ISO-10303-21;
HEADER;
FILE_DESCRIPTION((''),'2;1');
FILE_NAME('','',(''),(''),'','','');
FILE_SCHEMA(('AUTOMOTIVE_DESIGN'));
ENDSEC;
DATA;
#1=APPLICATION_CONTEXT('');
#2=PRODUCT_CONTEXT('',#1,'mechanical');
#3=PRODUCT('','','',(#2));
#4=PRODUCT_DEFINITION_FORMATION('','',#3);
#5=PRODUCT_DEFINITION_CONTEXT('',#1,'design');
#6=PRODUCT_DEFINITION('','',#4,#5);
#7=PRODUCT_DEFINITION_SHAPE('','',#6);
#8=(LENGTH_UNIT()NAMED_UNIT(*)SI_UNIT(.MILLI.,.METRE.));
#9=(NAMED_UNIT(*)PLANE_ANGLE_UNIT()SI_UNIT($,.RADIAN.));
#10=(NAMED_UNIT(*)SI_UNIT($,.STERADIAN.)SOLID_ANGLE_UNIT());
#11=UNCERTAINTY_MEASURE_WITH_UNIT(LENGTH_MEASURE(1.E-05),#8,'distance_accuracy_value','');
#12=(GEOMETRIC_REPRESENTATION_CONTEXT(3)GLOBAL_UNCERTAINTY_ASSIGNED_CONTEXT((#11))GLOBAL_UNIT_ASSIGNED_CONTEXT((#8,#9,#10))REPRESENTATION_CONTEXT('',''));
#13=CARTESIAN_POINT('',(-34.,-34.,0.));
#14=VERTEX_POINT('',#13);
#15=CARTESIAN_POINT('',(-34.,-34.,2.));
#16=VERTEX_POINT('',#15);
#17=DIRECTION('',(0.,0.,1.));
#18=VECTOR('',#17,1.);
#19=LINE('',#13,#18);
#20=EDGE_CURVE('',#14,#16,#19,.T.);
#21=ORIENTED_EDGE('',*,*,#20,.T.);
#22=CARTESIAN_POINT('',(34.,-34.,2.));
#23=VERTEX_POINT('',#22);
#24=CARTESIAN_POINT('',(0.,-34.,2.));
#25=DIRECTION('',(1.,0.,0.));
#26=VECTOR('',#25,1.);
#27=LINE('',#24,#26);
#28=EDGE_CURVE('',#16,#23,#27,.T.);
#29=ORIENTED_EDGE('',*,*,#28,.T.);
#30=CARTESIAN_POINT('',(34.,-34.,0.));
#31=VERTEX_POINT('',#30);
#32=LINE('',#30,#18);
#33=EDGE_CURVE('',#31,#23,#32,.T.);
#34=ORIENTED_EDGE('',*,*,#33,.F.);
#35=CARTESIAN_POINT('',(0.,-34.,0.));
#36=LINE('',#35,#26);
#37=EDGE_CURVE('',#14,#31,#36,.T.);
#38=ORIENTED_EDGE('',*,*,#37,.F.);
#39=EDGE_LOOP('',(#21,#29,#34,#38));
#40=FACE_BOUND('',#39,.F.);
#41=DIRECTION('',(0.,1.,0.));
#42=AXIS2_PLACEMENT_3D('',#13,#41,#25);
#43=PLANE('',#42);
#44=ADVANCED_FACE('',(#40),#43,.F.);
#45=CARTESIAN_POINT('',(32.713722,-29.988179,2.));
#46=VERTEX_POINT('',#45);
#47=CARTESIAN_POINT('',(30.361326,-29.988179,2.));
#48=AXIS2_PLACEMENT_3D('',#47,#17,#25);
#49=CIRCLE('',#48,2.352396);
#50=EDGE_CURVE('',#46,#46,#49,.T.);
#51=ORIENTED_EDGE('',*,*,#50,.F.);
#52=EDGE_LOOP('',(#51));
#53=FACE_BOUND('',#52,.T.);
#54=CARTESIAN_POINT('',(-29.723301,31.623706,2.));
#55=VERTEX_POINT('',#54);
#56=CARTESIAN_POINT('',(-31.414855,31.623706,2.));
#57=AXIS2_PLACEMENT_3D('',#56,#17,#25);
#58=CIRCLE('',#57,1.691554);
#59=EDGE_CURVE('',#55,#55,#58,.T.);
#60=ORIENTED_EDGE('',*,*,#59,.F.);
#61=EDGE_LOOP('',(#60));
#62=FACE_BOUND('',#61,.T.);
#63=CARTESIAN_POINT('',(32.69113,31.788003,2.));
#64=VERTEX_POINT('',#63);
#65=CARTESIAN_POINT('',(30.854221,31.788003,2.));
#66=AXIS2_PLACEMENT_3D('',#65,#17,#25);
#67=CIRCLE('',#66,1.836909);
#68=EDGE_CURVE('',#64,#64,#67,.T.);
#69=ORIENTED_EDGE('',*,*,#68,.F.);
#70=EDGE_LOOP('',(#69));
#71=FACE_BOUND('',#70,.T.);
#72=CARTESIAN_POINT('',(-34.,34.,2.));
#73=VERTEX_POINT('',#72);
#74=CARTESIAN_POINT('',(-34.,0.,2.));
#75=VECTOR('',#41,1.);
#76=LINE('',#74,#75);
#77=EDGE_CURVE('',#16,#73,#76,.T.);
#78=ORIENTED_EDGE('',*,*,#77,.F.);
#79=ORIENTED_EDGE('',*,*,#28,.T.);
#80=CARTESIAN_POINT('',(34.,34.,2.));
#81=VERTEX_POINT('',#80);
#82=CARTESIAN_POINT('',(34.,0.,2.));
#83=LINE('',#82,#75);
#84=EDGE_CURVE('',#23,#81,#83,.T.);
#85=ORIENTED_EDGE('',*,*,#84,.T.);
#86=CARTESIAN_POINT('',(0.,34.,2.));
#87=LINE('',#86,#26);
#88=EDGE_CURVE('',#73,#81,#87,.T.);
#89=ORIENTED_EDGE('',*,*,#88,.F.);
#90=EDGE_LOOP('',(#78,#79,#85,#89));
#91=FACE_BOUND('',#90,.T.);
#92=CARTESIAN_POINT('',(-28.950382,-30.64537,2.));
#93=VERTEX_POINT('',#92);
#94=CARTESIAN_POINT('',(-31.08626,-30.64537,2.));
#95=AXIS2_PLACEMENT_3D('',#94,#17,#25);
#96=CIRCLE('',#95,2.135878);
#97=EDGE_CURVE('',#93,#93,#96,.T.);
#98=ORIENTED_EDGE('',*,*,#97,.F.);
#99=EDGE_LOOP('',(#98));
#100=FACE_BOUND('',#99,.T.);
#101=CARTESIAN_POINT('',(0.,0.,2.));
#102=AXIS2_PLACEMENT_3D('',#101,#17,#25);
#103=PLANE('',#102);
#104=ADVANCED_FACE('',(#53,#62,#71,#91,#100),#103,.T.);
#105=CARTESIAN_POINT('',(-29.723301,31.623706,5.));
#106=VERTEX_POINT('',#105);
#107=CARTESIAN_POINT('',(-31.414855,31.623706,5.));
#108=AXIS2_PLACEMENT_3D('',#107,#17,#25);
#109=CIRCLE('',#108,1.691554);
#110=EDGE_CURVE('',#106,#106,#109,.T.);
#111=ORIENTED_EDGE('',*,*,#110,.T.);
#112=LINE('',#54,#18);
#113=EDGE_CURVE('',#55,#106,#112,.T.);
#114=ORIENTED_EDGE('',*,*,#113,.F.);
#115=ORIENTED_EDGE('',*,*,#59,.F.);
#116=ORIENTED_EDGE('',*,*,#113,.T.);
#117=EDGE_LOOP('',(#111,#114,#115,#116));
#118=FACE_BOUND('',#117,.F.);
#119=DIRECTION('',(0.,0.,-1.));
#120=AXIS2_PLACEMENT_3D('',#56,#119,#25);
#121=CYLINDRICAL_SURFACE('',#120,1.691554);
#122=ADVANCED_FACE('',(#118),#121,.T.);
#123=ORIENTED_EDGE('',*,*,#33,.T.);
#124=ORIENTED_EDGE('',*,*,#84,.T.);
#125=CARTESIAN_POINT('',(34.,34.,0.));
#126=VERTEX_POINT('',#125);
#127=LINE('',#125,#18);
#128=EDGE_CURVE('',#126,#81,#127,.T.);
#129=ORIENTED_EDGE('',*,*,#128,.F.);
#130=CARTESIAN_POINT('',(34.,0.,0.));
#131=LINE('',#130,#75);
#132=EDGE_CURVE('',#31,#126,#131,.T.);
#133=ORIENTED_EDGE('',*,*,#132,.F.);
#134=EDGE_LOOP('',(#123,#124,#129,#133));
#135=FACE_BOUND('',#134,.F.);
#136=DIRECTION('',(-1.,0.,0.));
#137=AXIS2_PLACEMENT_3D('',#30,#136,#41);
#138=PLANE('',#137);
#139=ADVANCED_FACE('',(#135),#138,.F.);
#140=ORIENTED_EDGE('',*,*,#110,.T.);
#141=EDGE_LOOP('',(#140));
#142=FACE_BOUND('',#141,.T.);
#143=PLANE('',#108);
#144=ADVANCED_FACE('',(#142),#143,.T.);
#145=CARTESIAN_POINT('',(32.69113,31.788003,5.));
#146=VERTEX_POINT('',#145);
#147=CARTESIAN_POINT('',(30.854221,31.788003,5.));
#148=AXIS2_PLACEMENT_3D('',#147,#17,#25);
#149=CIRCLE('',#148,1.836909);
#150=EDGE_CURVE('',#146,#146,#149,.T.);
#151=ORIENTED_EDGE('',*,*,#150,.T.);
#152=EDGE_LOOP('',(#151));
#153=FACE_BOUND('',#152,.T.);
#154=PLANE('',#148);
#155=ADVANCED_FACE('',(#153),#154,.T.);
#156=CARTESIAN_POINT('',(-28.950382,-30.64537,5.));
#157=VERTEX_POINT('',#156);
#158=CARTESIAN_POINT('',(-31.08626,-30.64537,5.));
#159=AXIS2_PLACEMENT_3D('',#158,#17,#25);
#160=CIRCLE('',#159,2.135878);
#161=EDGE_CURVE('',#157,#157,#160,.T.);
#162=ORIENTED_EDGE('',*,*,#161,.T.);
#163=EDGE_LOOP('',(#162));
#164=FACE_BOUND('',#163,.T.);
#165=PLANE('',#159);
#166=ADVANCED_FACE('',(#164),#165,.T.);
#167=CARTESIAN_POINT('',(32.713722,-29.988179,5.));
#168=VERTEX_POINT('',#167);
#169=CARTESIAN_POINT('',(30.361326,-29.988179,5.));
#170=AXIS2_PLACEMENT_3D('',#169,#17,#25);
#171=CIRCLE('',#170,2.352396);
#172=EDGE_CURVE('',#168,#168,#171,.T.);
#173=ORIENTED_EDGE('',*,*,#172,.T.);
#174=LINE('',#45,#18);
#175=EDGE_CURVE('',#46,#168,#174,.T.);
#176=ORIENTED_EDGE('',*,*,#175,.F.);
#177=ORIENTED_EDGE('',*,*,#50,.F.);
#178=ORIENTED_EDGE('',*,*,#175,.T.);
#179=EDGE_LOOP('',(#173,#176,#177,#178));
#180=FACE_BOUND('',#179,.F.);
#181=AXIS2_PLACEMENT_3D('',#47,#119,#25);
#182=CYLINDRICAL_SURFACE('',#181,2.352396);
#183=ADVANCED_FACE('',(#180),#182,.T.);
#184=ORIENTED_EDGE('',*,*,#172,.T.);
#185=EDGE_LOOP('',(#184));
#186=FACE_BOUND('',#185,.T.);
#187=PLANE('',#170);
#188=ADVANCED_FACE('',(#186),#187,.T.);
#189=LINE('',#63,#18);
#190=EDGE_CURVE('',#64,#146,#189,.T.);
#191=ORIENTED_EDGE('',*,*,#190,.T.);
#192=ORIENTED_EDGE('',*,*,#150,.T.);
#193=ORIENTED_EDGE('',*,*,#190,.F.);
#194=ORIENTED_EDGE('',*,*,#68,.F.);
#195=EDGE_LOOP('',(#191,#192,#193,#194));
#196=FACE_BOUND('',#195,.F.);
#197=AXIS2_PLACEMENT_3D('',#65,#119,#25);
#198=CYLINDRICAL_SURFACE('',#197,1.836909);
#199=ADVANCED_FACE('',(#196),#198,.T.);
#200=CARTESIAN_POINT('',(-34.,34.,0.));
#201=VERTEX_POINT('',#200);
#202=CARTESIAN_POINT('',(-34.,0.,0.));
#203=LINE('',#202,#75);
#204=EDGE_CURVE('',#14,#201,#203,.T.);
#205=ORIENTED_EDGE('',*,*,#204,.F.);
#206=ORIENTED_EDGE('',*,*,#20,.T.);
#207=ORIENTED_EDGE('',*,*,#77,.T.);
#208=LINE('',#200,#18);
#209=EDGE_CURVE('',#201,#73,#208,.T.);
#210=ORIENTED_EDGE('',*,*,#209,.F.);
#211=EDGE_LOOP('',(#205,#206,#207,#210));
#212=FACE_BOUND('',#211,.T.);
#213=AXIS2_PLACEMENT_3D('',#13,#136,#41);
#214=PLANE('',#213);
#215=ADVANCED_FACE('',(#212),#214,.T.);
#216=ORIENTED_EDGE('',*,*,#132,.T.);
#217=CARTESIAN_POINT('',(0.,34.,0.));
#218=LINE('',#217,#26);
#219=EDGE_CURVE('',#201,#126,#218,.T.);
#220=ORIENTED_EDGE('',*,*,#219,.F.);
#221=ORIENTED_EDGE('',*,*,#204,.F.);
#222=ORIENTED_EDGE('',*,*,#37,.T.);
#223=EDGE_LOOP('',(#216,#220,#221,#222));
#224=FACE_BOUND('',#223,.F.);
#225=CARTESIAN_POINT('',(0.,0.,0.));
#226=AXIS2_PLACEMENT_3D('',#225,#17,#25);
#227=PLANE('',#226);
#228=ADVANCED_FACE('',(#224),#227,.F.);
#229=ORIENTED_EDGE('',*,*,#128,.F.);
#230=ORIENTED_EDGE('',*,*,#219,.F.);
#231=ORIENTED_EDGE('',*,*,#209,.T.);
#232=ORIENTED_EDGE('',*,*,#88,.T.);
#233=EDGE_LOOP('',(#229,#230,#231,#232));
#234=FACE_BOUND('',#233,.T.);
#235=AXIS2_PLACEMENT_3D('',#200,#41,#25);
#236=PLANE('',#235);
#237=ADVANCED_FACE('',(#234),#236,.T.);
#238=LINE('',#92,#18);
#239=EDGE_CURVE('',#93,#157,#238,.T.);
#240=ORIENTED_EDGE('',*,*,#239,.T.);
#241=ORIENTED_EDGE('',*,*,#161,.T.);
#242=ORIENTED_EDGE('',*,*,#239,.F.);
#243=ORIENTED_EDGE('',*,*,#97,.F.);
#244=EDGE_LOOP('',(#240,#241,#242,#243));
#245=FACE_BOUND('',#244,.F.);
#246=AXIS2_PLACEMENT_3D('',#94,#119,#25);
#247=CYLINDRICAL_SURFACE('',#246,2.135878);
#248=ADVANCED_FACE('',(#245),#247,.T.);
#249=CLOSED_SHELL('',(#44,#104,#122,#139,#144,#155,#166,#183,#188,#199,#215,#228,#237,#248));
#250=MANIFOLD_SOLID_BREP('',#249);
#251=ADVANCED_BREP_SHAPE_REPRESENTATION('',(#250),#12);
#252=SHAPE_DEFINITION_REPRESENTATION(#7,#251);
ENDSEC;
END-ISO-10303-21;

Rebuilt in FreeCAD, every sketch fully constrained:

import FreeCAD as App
import Part
import Sketcher
from FreeCAD import Vector
Q = App.Units.Quantity


def add_polygon(sketch, points):
    """Adds a closed chain of lines whose ends are joined by coincident constraints."""
    first, n = sketch.GeometryCount, len(points)
    for a, b in zip(points, points[1:] + points[:1]):
        sketch.addGeometry(Part.LineSegment(App.Vector(*a, 0), App.Vector(*b, 0)), False)
    for i in range(n):
        sketch.addConstraint(Sketcher.Constraint("Coincident", first + i, 2, first + (i + 1) % n, 1))

doc = App.newDocument("Part")
params = doc.addObject("Spreadsheet::Sheet", "Params")
for row, (alias, value) in enumerate([
    ("sketch1_width", "68 mm"),
    ("pad1_length", "2 mm"),
    ("pad2_length", "3 mm"),
], start=1):
    params.set(f"A{row}", alias)
    params.set(f"B{row}", "=" + value)
    params.setAlias(f"B{row}", alias)

body = doc.addObject("PartDesign::Body", "Body")

# Sketch on XY plane
sketch1 = body.newObject("Sketcher::SketchObject", "Sketch")
sketch1.AttachmentSupport = (doc.getObject("XY_Plane"), [""])
sketch1.MapMode = "FlatFace"
add_polygon(sketch1, [(-34, 34), (-34, -34), (34, -34), (34, 34)])  # lines 0-3
sketch1.addConstraint([
    Sketcher.Constraint("Vertical", 0),
    Sketcher.Constraint("Horizontal", 1),
    Sketcher.Constraint("Vertical", 2),
    Sketcher.Constraint("Horizontal", 3),
    Sketcher.Constraint("Symmetric", 0, 2, 2, 2, -1, 1),
    Sketcher.Constraint("Equal", 3, 0),
    Sketcher.Constraint("DistanceX", 1, 1, 1, 2, Q("68 mm")),
])
sketch1.setExpression("Constraints[10]", "Params.sketch1_width")
pad1 = body.newObject("PartDesign::Pad", "Pad")
pad1.Profile = sketch1
pad1.setExpression("Length", "Params.pad1_length")

# Sketch on XY plane
sketch2 = body.newObject("Sketcher::SketchObject", "Sketch001")
sketch2.AttachmentSupport = (doc.getObject("XY_Plane"), [""])
sketch2.MapMode = "FlatFace"
sketch2.AttachmentOffset = App.Placement(Vector(0, 0, 2), App.Rotation())
sketch2.addGeometry([
    Part.Circle(Vector(-31.4, 31.6, 0), Vector(0, 0, 1), 1.7),
    Part.Circle(Vector(30.9, 31.8, 0), Vector(0, 0, 1), 1.8),
    Part.Circle(Vector(30.4, -30, 0), Vector(0, 0, 1), 2.4),
    Part.Circle(Vector(-31.1, -30.6, 0), Vector(0, 0, 1), 2.1),
], False)
sketch2.addConstraint([
    Sketcher.Constraint("Diameter", 0, Q("3.383108 mm")),
    Sketcher.Constraint("Diameter", 1, Q("3.673818 mm")),
    Sketcher.Constraint("Diameter", 2, Q("4.704792 mm")),
    Sketcher.Constraint("Diameter", 3, Q("4.271756 mm")),
    Sketcher.Constraint("DistanceX", -1, 1, 1, 3, Q("30.854221 mm")),
    Sketcher.Constraint("DistanceY", 2, 3, -1, 1, Q("29.988179 mm")),
    Sketcher.Constraint("DistanceX", 3, 3, -1, 1, Q("31.08626 mm")),
    Sketcher.Constraint("DistanceY", 3, 3, -1, 1, Q("30.64537 mm")),
    Sketcher.Constraint("DistanceX", 0, 3, 2, 3, Q("61.776181 mm")),
    Sketcher.Constraint("DistanceX", 0, 3, -1, 1, Q("31.414855 mm")),
    Sketcher.Constraint("DistanceY", -1, 1, 0, 3, Q("31.623706 mm")),
    Sketcher.Constraint("DistanceY", -1, 1, 1, 3, Q("31.788003 mm")),
])
pad2 = body.newObject("PartDesign::Pad", "Pad001")
pad2.Profile = sketch2
pad2.setExpression("Length", "Params.pad2_length")

doc.recompute()
